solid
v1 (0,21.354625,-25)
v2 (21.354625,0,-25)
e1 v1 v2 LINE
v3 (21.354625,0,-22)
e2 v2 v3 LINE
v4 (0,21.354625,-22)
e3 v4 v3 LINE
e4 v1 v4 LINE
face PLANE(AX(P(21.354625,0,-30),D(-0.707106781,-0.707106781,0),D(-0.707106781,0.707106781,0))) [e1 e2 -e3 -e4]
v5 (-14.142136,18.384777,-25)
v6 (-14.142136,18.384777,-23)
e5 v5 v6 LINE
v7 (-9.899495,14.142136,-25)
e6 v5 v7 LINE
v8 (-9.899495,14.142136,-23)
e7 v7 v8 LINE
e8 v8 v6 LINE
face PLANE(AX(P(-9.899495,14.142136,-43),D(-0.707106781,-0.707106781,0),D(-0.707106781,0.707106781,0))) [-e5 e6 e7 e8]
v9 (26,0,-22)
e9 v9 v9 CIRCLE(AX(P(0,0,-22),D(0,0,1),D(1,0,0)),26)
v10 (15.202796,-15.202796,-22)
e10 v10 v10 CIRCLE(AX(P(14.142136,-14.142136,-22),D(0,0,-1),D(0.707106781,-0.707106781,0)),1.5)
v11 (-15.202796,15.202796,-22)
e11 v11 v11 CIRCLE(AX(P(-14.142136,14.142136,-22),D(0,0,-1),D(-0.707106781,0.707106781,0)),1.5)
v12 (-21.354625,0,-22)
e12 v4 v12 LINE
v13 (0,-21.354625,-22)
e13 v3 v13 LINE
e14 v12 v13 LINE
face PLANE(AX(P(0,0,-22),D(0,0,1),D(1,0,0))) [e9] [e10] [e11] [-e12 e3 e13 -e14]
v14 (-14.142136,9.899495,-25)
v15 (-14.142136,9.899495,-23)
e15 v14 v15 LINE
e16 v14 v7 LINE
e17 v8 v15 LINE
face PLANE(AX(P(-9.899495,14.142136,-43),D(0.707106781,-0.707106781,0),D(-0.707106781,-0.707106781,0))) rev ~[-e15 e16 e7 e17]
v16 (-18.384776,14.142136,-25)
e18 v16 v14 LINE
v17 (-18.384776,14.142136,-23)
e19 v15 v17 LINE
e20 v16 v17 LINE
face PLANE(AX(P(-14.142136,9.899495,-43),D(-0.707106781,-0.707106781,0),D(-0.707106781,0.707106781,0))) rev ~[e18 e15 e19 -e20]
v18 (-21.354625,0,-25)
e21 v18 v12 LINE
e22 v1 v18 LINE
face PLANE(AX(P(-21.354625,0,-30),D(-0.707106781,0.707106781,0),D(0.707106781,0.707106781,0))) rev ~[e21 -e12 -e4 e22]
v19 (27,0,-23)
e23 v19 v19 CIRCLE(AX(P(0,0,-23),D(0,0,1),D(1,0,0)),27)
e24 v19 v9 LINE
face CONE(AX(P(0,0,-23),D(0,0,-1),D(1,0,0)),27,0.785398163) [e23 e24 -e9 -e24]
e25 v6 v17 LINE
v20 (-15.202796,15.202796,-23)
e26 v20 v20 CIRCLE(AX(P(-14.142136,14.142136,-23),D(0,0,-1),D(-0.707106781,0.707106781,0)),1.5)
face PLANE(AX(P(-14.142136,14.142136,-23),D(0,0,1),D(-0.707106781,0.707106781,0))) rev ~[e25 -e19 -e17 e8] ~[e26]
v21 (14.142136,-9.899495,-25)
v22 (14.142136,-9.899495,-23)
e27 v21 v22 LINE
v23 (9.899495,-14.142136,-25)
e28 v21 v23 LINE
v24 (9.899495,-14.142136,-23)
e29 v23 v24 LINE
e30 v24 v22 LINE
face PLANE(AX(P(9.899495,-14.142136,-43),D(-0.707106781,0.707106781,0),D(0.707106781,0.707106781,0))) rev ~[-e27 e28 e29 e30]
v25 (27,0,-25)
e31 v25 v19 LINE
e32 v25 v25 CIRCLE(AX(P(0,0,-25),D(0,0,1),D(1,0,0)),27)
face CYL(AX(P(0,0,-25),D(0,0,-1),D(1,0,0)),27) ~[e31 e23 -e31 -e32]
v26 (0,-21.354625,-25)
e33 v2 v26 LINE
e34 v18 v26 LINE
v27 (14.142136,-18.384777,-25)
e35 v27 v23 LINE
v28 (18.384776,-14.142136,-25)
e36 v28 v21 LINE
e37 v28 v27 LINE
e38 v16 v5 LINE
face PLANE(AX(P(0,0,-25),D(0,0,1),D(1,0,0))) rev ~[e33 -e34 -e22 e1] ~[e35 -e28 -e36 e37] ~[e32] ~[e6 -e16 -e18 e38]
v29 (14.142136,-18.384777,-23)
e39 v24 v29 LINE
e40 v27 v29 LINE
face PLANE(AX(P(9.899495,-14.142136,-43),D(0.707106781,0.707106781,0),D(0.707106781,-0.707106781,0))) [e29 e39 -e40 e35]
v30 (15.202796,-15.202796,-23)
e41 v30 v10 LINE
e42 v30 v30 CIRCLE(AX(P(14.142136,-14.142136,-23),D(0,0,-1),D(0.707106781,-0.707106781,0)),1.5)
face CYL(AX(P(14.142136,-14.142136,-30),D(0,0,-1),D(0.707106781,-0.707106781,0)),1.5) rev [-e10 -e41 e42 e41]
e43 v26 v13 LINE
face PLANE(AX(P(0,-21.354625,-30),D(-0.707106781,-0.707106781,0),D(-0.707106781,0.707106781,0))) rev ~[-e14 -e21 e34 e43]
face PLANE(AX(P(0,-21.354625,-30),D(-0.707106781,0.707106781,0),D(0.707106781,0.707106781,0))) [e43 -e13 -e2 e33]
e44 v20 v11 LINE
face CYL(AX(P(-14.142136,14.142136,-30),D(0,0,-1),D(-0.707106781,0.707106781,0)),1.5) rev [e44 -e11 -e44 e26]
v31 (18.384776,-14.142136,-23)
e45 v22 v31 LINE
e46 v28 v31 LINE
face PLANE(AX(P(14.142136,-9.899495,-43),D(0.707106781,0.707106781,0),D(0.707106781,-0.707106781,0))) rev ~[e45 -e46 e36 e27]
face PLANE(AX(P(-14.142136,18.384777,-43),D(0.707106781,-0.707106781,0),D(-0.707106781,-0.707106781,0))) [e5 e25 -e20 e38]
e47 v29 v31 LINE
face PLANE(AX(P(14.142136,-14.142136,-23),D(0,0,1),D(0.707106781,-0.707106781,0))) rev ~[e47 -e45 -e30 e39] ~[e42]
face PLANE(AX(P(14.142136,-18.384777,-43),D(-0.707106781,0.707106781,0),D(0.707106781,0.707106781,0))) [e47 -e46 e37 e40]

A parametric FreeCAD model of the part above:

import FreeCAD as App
import Part
import Sketcher
from FreeCAD import Vector
Q = App.Units.Quantity


def edges_at(feature, points):
    """Names of the edges that pass closest to the given points."""
    edges = feature.Shape.Edges
    near = lambda p: min(range(len(edges)), key=lambda i: edges[i].distToShape(Part.Vertex(*p))[0])
    return sorted({f"Edge{near(p) + 1}" for p in points})

doc = App.newDocument("Part")
body = doc.addObject("PartDesign::Body", "Body")

sketch1 = doc.addObject("Sketcher::SketchObject", "Sketch")
body.addObject(sketch1)
sketch1.AttachmentSupport = (doc.XY_Plane, [""])
sketch1.MapMode = "FlatFace"
sketch1.addGeometry(Part.LineSegment(Vector(0, 6, 0), Vector(0, 0, 0)), False)
sketch1.addGeometry(Part.LineSegment(Vector(0, 0, 0), Vector(6, 0, 0)), False)
sketch1.addGeometry(Part.LineSegment(Vector(6, 0, 0), Vector(6, 6, 0)), False)
sketch1.addGeometry(Part.LineSegment(Vector(6, 6, 0), Vector(0, 6, 0)), False)
sketch1.addConstraint(Sketcher.Constraint("Coincident", 0, 2, 1, 1))
sketch1.addConstraint(Sketcher.Constraint("Coincident", 1, 2, 2, 1))
sketch1.addConstraint(Sketcher.Constraint("Coincident", 2, 2, 3, 1))
sketch1.addConstraint(Sketcher.Constraint("Coincident", 3, 2, 0, 1))
sketch1.addConstraint(Sketcher.Constraint("Vertical", 0))
sketch1.addConstraint(Sketcher.Constraint("Horizontal", 1))
sketch1.addConstraint(Sketcher.Constraint("Vertical", 2))
sketch1.addConstraint(Sketcher.Constraint("Horizontal", 3))
sketch1.addConstraint(Sketcher.Constraint("Coincident", 0, 2, -1, 1))
sketch1.addConstraint(Sketcher.Constraint("Equal", 3, 0))
sketch1.addConstraint(Sketcher.Constraint("DistanceX", 1, 1, 1, 2, Q("6 mm")))
pad1 = doc.addObject("PartDesign::Pad", "Pad")
body.addObject(pad1)
pad1.Profile = sketch1
pad1.Length = 20
body2 = doc.addObject("PartDesign::Body", "Body001")
doc.recompute()

body.Placement = App.Placement(Vector(9.899495, -14.142136, -30), App.Rotation(Vector(0, 0, -1), 45))
boolean = doc.addObject("PartDesign::Boolean", "Boolean")
body2.addObject(boolean)
boolean.Type = "Fuse"
boolean.addObjects([body])
body3 = doc.addObject("PartDesign::Body", "Body002")

sketch2 = doc.addObject("Sketcher::SketchObject", "Sketch001")
body3.addObject(sketch2)
sketch2.AttachmentSupport = (doc.getObject("XY_Plane002"), [""])
sketch2.MapMode = "FlatFace"
sketch2.addGeometry(Part.LineSegment(Vector(0, 6, 0), Vector(0, 0, 0)), False)
sketch2.addGeometry(Part.LineSegment(Vector(0, 0, 0), Vector(6, 0, 0)), False)
sketch2.addGeometry(Part.LineSegment(Vector(6, 0, 0), Vector(6, 6, 0)), False)
sketch2.addGeometry(Part.LineSegment(Vector(6, 6, 0), Vector(0, 6, 0)), False)
sketch2.addConstraint(Sketcher.Constraint("Coincident", 0, 2, 1, 1))
sketch2.addConstraint(Sketcher.Constraint("Coincident", 1, 2, 2, 1))
sketch2.addConstraint(Sketcher.Constraint("Coincident", 2, 2, 3, 1))
sketch2.addConstraint(Sketcher.Constraint("Coincident", 3, 2, 0, 1))
sketch2.addConstraint(Sketcher.Constraint("Vertical", 0))
sketch2.addConstraint(Sketcher.Constraint("Horizontal", 1))
sketch2.addConstraint(Sketcher.Constraint("Vertical", 2))
sketch2.addConstraint(Sketcher.Constraint("Horizontal", 3))
sketch2.addConstraint(Sketcher.Constraint("Coincident", 0, 2, -1, 1))
sketch2.addConstraint(Sketcher.Constraint("Equal", 3, 0))
sketch2.addConstraint(Sketcher.Constraint("DistanceX", 1, 1, 1, 2, Q("6 mm")))
pad2 = doc.addObject("PartDesign::Pad", "Pad001")
body3.addObject(pad2)
pad2.Profile = sketch2
pad2.Length = 20
body4 = doc.addObject("PartDesign::Body", "Body003")
body4.AllowCompound = True
doc.recompute()

body3.Placement = App.Placement(Vector(-9.899495, 14.142136, -30), App.Rotation(Vector(0, 0, 1), 135))
boolean2 = doc.addObject("PartDesign::Boolean", "Boolean001")
body4.addObject(boolean2)
boolean2.Type = "Fuse"
boolean2.addObjects([body3])
doc.recompute()

boolean3 = doc.addObject("PartDesign::Boolean", "Boolean002")
body4.addObject(boolean3)
boolean3.Type = "Fuse"
boolean3.addObjects([body2])
body5 = doc.addObject("PartDesign::Body", "Body004")
body5.AllowCompound = True
doc.recompute()

body4.Placement = App.Placement(Vector(0, 0, -13), App.Rotation(Vector(0, 0, 1), 0))
boolean4 = doc.addObject("PartDesign::Boolean", "Boolean003")
body5.addObject(boolean4)
boolean4.Type = "Fuse"
boolean4.addObjects([body4])
body6 = doc.addObject("PartDesign::Body", "Body005")

sketch3 = doc.addObject("Sketcher::SketchObject", "Sketch002")
body6.addObject(sketch3)
sketch3.AttachmentSupport = (doc.getObject("XY_Plane005"), [""])
sketch3.MapMode = "FlatFace"
sketch3.addGeometry(Part.Circle(Vector(0, 0, 0), Vector(0, 0, 1), 1.5), False)
sketch3.addConstraint(Sketcher.Constraint("Coincident", 0, 3, -1, 1))
sketch3.addConstraint(Sketcher.Constraint("Diameter", 0, Q("3 mm")))
pad3 = doc.addObject("PartDesign::Pad", "Pad002")
body6.addObject(pad3)
pad3.Profile = sketch3
pad3.Length = 20
body7 = doc.addObject("PartDesign::Body", "Body006")
doc.recompute()

body6.Placement = App.Placement(Vector(-14.142136, 14.142136, -30), App.Rotation(Vector(0, 0, 1), 135))
boolean5 = doc.addObject("PartDesign::Boolean", "Boolean004")
body7.addObject(boolean5)
boolean5.Type = "Fuse"
boolean5.addObjects([body6])
body8 = doc.addObject("PartDesign::Body", "Body007")

sketch4 = doc.addObject("Sketcher::SketchObject", "Sketch003")
body8.addObject(sketch4)
sketch4.AttachmentSupport = (doc.getObject("XY_Plane007"), [""])
sketch4.MapMode = "FlatFace"
sketch4.addGeometry(Part.Circle(Vector(0, 0, 0), Vector(0, 0, 1), 1.5), False)
sketch4.addConstraint(Sketcher.Constraint("Coincident", 0, 3, -1, 1))
sketch4.addConstraint(Sketcher.Constraint("Diameter", 0, Q("3 mm")))
pad4 = doc.addObject("PartDesign::Pad", "Pad003")
body8.addObject(pad4)
pad4.Profile = sketch4
pad4.Length = 20
body9 = doc.addObject("PartDesign::Body", "Body008")
body9.AllowCompound = True
doc.recompute()

body8.Placement = App.Placement(Vector(14.142136, -14.142136, -30), App.Rotation(Vector(0, 0, -1), 45))
boolean6 = doc.addObject("PartDesign::Boolean", "Boolean005")
body9.addObject(boolean6)
boolean6.Type = "Fuse"
boolean6.addObjects([body8])
doc.recompute()

boolean7 = doc.addObject("PartDesign::Boolean", "Boolean006")
body9.addObject(boolean7)
boolean7.Type = "Fuse"
boolean7.addObjects([body7])
body10 = doc.addObject("PartDesign::Body", "Body009")

sketch5 = doc.addObject("Sketcher::SketchObject", "Sketch004")
body10.addObject(sketch5)
sketch5.AttachmentSupport = (doc.getObject("XY_Plane009"), [""])
sketch5.MapMode = "FlatFace"
sketch5.addGeometry(Part.LineSegment(Vector(0, 30.2, 0), Vector(0, 0, 0)), False)
sketch5.addGeometry(Part.LineSegment(Vector(0, 0, 0), Vector(30.2, 0, 0)), False)
sketch5.addGeometry(Part.LineSegment(Vector(30.2, 0, 0), Vector(30.2, 30.2, 0)), False)
sketch5.addGeometry(Part.LineSegment(Vector(30.2, 30.2, 0), Vector(0, 30.2, 0)), False)
sketch5.addConstraint(Sketcher.Constraint("Coincident", 0, 2, 1, 1))
sketch5.addConstraint(Sketcher.Constraint("Coincident", 1, 2, 2, 1))
sketch5.addConstraint(Sketcher.Constraint("Coincident", 2, 2, 3, 1))
sketch5.addConstraint(Sketcher.Constraint("Coincident", 3, 2, 0, 1))
sketch5.addConstraint(Sketcher.Constraint("Vertical", 0))
sketch5.addConstraint(Sketcher.Constraint("Horizontal", 1))
sketch5.addConstraint(Sketcher.Constraint("Vertical", 2))
sketch5.addConstraint(Sketcher.Constraint("Horizontal", 3))
sketch5.addConstraint(Sketcher.Constraint("Coincident", 0, 2, -1, 1))
sketch5.addConstraint(Sketcher.Constraint("Equal", 3, 0))
sketch5.addConstraint(Sketcher.Constraint("DistanceX", 1, 1, 1, 2, Q("30.2 mm")))
pad5 = doc.addObject("PartDesign::Pad", "Pad004")
body10.addObject(pad5)
pad5.Profile = sketch5
pad5.Length = 100
body11 = doc.addObject("PartDesign::Body", "Body010")
doc.recompute()

body10.Placement = App.Placement(Vector(0, -21.354625, -30), App.Rotation(Vector(0, 0, 1), 45))
boolean8 = doc.addObject("PartDesign::Boolean", "Boolean007")
body11.addObject(boolean8)
boolean8.Type = "Fuse"
boolean8.addObjects([body10])
body12 = doc.addObject("PartDesign::Body", "Body011")

sketch6 = doc.addObject("Sketcher::SketchObject", "Sketch005")
body12.addObject(sketch6)
sketch6.AttachmentSupport = (doc.getObject("XY_Plane011"), [""])
sketch6.MapMode = "FlatFace"
sketch6.AttachmentOffset = App.Placement(Vector(0, 0, -25), App.Rotation())
sketch6.addGeometry(Part.Circle(Vector(0, 0, 0), Vector(0, 0, 1), 27), False)
sketch6.addConstraint(Sketcher.Constraint("Coincident", 0, 3, -1, 1))
sketch6.addConstraint(Sketcher.Constraint("Diameter", 0, Q("54 mm")))
pad6 = doc.addObject("PartDesign::Pad", "Pad005")
body12.addObject(pad6)
pad6.Profile = sketch6
pad6.Length = 3
doc.recompute()

chamfer = doc.addObject("PartDesign::Chamfer", "Chamfer")
body12.addObject(chamfer)
chamfer.Base = (pad6, edges_at(pad6, [(-27, 0, -22)]))
chamfer.Size = 1
doc.recompute()

boolean9 = doc.addObject("PartDesign::Boolean", "Boolean008")
body12.addObject(boolean9)
boolean9.Type = "Cut"
boolean9.addObjects([body11])
doc.recompute()

boolean10 = doc.addObject("PartDesign::Boolean", "Boolean009")
body12.addObject(boolean10)
boolean10.Type = "Cut"
boolean10.addObjects([body9])
doc.recompute()

boolean11 = doc.addObject("PartDesign::Boolean", "Boolean010")
body12.addObject(boolean11)
boolean11.Type = "Cut"
boolean11.addObjects([body5])

doc.recompute()
